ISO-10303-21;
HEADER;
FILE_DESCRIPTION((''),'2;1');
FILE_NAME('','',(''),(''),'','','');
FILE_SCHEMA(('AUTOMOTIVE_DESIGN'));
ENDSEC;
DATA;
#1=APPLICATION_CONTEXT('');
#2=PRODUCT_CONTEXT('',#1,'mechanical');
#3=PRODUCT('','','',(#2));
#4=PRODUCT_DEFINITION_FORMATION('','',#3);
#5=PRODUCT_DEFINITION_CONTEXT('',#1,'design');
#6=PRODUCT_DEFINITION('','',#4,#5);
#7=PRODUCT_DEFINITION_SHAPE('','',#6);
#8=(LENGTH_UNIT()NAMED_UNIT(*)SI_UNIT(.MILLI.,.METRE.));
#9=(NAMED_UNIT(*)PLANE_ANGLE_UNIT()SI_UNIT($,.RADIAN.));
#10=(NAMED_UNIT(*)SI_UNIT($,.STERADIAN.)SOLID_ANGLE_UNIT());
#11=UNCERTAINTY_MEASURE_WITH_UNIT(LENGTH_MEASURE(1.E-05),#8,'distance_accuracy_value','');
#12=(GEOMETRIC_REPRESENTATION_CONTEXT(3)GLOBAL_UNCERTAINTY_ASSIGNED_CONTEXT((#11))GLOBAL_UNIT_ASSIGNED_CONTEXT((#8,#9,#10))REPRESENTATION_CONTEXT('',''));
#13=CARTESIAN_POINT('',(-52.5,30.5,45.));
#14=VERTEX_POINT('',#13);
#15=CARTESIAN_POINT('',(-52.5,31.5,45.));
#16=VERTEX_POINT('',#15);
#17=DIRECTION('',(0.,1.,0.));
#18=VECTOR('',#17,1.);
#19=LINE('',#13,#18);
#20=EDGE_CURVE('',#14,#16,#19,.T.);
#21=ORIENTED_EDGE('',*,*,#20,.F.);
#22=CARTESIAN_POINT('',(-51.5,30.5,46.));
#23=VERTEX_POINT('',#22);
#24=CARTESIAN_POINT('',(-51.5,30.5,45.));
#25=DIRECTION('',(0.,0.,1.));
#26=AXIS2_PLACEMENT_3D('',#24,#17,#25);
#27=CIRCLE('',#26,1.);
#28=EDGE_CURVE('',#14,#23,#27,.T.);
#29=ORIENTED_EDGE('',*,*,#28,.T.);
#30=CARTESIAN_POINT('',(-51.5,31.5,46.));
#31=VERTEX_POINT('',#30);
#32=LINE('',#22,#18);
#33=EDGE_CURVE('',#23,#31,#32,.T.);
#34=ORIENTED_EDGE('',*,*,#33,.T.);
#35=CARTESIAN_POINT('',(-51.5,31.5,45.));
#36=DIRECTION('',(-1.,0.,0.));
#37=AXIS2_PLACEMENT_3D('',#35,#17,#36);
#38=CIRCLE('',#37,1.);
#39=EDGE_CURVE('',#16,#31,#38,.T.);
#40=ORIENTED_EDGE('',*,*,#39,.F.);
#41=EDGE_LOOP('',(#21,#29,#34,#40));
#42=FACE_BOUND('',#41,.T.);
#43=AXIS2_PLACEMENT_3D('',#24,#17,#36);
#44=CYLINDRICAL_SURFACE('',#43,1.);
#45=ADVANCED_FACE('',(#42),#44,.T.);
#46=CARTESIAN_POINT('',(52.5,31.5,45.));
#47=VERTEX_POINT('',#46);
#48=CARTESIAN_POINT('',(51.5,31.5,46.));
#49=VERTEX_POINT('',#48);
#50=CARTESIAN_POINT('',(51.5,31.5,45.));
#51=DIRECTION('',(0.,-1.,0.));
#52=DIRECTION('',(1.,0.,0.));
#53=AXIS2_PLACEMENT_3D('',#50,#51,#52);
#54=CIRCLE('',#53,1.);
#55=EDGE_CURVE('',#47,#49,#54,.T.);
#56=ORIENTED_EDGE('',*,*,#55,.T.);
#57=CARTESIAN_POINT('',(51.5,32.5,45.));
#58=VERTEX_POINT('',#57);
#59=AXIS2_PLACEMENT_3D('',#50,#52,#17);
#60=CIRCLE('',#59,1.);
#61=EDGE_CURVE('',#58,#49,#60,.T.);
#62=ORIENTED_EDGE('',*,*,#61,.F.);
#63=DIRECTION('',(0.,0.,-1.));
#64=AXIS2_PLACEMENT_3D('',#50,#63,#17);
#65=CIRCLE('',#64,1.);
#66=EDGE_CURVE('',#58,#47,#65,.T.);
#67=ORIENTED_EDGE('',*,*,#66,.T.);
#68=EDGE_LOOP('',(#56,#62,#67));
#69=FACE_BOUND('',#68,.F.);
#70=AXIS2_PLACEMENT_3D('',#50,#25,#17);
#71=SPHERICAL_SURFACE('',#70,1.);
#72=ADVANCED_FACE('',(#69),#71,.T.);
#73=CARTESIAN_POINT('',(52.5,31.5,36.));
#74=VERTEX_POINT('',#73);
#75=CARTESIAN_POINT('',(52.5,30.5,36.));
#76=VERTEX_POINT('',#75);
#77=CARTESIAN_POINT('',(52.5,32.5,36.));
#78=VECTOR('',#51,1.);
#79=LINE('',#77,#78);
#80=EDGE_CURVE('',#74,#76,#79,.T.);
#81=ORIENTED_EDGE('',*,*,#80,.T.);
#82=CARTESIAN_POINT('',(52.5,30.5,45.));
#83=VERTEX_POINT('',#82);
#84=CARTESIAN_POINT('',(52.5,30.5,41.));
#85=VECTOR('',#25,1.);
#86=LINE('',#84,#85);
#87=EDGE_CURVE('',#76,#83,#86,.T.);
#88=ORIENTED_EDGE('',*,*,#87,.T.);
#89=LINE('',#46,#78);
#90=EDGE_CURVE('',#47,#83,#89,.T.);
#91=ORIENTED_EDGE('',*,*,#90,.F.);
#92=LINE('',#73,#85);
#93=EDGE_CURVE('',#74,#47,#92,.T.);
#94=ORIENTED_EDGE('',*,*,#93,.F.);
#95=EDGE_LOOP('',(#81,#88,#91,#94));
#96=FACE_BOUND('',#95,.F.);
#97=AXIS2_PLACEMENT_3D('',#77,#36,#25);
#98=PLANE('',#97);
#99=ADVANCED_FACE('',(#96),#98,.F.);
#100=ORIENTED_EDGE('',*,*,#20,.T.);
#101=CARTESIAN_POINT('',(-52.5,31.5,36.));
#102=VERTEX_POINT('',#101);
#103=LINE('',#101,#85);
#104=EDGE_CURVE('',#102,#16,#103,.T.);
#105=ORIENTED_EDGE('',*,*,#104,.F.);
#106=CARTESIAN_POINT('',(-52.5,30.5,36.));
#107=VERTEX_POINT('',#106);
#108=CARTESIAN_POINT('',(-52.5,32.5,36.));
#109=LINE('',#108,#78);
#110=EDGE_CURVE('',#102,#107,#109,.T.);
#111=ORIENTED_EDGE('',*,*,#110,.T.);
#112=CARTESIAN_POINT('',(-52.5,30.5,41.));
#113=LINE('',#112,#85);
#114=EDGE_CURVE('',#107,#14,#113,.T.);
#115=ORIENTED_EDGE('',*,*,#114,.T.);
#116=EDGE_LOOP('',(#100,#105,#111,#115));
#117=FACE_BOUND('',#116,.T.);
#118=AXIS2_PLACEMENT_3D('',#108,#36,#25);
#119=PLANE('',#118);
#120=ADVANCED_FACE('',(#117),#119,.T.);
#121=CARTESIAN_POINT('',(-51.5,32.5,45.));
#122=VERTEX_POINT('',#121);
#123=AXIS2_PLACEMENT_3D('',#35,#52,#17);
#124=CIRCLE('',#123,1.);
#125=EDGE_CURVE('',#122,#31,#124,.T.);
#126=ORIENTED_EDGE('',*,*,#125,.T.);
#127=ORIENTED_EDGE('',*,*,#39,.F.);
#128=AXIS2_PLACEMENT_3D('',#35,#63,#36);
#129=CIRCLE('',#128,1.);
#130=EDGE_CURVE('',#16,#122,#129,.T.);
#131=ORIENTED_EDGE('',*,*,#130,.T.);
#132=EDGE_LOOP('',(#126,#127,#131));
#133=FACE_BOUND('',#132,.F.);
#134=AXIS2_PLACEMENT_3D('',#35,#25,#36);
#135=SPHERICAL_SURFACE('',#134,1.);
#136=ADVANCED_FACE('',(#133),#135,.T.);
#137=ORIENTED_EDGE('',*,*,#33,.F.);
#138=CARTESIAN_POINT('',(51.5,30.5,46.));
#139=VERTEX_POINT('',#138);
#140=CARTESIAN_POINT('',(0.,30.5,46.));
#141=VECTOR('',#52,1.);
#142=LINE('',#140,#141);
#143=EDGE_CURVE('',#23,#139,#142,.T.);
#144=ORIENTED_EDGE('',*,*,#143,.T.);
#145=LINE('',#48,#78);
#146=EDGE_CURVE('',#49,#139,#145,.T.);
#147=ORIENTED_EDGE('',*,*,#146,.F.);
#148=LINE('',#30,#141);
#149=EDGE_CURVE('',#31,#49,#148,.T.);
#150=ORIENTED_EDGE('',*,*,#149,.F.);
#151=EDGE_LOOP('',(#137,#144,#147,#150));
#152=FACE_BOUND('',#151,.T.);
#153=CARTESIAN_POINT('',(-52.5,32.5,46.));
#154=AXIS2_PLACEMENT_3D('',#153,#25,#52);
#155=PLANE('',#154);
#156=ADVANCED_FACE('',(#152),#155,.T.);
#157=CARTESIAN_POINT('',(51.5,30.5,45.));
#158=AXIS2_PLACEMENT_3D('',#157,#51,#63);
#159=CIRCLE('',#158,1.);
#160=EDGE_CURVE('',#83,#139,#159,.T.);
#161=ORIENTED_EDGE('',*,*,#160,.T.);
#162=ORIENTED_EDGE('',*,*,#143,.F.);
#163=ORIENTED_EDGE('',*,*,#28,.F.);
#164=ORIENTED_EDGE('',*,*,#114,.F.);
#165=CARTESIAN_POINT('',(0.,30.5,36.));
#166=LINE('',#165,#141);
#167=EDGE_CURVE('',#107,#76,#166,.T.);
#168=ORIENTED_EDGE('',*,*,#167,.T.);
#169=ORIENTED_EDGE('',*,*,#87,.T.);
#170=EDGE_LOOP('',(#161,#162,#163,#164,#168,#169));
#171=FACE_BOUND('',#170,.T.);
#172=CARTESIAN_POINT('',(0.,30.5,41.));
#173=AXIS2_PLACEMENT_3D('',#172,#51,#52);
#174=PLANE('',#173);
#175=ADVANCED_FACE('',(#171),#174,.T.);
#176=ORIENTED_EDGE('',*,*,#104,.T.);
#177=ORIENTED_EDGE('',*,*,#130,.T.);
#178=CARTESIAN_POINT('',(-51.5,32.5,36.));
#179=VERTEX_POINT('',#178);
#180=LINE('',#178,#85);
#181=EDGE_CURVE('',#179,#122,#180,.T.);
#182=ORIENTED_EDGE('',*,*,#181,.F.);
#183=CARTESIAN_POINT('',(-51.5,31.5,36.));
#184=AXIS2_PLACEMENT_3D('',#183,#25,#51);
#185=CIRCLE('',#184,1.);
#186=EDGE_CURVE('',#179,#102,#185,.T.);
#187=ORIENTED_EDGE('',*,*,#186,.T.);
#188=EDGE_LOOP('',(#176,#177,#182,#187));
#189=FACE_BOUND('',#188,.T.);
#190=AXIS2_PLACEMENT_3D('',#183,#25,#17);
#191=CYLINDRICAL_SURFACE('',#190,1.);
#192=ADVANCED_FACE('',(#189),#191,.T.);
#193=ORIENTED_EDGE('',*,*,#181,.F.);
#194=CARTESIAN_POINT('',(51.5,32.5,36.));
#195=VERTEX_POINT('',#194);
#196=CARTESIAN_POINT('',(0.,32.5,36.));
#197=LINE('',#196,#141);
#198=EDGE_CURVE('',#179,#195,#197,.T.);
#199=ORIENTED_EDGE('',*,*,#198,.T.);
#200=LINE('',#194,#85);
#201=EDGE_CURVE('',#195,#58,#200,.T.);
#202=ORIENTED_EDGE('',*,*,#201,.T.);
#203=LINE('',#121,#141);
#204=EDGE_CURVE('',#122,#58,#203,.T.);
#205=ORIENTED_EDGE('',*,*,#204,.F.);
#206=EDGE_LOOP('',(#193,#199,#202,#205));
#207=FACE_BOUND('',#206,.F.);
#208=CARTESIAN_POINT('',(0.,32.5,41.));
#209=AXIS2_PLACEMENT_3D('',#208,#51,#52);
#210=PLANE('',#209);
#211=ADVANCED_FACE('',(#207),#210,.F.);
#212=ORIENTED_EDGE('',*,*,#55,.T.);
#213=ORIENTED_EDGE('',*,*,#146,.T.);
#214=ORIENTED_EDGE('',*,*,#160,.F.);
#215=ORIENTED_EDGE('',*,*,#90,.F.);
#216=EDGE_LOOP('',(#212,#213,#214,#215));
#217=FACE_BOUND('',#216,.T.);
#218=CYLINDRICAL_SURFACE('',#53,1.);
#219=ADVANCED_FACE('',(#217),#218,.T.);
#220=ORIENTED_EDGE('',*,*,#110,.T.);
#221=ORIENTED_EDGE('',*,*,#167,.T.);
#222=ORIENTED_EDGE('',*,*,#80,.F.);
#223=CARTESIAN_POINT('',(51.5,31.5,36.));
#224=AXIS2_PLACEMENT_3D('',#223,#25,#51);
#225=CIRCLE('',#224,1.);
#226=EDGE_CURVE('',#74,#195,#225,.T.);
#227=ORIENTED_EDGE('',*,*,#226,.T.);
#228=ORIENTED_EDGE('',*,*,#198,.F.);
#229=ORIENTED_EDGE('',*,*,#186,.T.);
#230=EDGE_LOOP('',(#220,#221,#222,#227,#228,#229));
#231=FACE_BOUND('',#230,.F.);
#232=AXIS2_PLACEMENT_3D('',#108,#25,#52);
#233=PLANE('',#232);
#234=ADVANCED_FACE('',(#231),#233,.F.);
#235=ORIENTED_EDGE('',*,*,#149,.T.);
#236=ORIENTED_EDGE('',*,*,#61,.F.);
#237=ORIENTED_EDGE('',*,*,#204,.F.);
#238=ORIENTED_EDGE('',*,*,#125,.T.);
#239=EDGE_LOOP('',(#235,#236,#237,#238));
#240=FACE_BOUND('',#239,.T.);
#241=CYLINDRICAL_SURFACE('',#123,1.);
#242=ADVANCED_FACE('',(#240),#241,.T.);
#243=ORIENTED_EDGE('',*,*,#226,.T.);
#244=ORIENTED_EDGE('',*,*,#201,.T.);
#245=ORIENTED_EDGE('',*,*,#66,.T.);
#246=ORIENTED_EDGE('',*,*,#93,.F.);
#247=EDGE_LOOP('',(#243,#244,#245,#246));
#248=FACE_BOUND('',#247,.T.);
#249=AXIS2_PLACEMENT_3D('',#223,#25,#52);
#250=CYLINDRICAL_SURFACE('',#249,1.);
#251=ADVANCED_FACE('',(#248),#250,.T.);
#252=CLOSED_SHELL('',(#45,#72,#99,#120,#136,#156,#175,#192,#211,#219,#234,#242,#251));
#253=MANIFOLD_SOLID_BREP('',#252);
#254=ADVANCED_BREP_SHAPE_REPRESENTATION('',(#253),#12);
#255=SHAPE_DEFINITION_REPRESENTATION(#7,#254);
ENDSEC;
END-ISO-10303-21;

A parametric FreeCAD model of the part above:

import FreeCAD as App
import Part
import Sketcher
from FreeCAD import Vector


def edges_at(feature, points):
    """Names of the edges that pass closest to the given points."""
    edges = feature.Shape.Edges
    near = lambda p: min(range(len(edges)), key=lambda i: edges[i].distToShape(Part.Vertex(*p))[0])
    return sorted({f"Edge{near(p) + 1}" for p in points})


def add_polygon(sketch, points):
    """Adds a closed chain of lines whose ends are joined by coincident constraints."""
    first, n = sketch.GeometryCount, len(points)
    for a, b in zip(points, points[1:] + points[:1]):
        sketch.addGeometry(Part.LineSegment(App.Vector(*a, 0), App.Vector(*b, 0)), False)
    for i in range(n):
        sketch.addConstraint(Sketcher.Constraint("Coincident", first + i, 2, first + (i + 1) % n, 1))

doc = App.newDocument("Part")
body = doc.addObject("PartDesign::Body", "Body")

# Sketch on XZ plane
sketch1 = body.newObject("Sketcher::SketchObject", "Sketch")
sketch1.AttachmentSupport = (doc.getObject("XZ_Plane"), [""])
sketch1.MapMode = "FlatFace"
add_polygon(sketch1, [(-52.5, 10), (-52.5, 0), (52.5, 0), (52.5, 10)])  # lines 0-3
sketch1.addConstraint(Sketcher.Constraint("Vertical", 0))
sketch1.addConstraint(Sketcher.Constraint("Horizontal", 1))
sketch1.addConstraint(Sketcher.Constraint("Vertical", 2))
sketch1.addConstraint(Sketcher.Constraint("Horizontal", 3))
sketch1.addConstraint(Sketcher.Constraint("Symmetric", 0, 2, 1, 2, -1, 1))
sketch1.addConstraint(Sketcher.Constraint("DistanceX", 1, 1, 1, 2, 105.0))
sketch1.addConstraint(Sketcher.Constraint("DistanceY", 0, 2, 0, 1, 10.0))
pad1 = body.newObject("PartDesign::Pad", "Pad")
pad1.Profile = sketch1
pad1.Length = 2
doc.recompute()

fillet = body.newObject("PartDesign::Fillet", "Fillet")
fillet.Base = (pad1, edges_at(pad1, [(52.5, 0, 5)]))
fillet.Radius = 1
doc.recompute()

fillet2 = body.newObject("PartDesign::Fillet", "Fillet001")
fillet2.Base = (fillet, edges_at(fillet, [(-52.5, 0, 5)]))
fillet2.Radius = 1
doc.recompute()

fillet3 = body.newObject("PartDesign::Fillet", "Fillet002")
fillet3.Base = (fillet2, edges_at(fillet2, [(0, 0, 10)]))
fillet3.Radius = 1
body2 = doc.addObject("PartDesign::Body", "Body001")
doc.recompute()

body.Placement = App.Placement(Vector(0, 32.5, 36), App.Rotation(Vector(0, 0, 1), 0))
boolean = body2.newObject("PartDesign::Boolean", "Boolean")
boolean.Type = "Fuse"
boolean.addObjects([body])

doc.recompute()
